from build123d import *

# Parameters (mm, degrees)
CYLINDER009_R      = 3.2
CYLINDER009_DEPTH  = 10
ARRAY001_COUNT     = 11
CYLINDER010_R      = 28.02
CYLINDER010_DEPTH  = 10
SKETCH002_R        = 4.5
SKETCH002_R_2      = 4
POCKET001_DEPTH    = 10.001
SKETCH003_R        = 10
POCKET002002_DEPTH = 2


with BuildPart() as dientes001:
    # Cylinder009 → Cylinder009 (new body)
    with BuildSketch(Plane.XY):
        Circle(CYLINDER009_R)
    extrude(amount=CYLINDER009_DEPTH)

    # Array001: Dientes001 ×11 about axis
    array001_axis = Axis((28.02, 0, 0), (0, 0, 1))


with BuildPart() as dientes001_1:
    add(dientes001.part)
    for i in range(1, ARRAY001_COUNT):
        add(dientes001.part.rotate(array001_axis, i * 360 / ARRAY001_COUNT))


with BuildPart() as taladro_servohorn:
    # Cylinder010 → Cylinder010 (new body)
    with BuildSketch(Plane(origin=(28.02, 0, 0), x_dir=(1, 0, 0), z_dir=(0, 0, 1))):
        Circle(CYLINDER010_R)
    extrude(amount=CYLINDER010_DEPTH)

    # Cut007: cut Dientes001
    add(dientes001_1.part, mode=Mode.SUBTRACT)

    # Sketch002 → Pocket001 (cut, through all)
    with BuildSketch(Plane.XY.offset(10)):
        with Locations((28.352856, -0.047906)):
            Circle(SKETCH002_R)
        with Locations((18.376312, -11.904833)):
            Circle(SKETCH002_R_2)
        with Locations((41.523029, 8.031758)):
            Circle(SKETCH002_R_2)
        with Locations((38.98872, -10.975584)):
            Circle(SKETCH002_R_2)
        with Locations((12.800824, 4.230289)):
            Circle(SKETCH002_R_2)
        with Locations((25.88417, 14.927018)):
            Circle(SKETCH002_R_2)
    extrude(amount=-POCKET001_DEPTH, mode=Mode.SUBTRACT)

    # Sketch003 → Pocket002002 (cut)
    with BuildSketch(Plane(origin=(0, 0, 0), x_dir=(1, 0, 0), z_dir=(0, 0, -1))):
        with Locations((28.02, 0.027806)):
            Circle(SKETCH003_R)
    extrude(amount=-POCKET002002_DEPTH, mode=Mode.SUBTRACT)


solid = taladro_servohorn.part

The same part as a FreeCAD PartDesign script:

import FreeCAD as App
import Part
import Sketcher
Q = App.Units.Quantity

doc = App.newDocument("Part")
body = doc.addObject("PartDesign::Body", "Body")

# Sketch on XY plane
sketch1 = body.newObject("Sketcher::SketchObject", "Sketch")
sketch1.AttachmentSupport = (doc.getObject("XY_Plane"), [""])
sketch1.MapMode = "FlatFace"
sketch1.addGeometry(Part.Circle(App.Vector(0, 0, 0), App.Vector(0, 0, 1), 3.2), False)
sketch1.addConstraint([
    Sketcher.Constraint("Coincident", 0, 3, -1, 1),
    Sketcher.Constraint("Diameter", 0, Q("6.4 mm")),
])
pad1 = body.newObject("PartDesign::Pad", "Pad")
pad1.Profile = sketch1
pad1.Length = 10
body2 = doc.addObject("PartDesign::Body", "Body001")
body2.AllowCompound = True
doc.recompute()

body2.BaseFeature = body
doc.recompute()

body3 = doc.addObject("PartDesign::Body", "Body002")
body3.BaseFeature = body
body3.Placement = App.Placement(App.Vector(4.448076, -15.148756, 0), App.Rotation(App.Vector(0, 0, 1), 32.727273))
boolean = body2.newObject("PartDesign::Boolean", "Boolean")
boolean.Type = "Fuse"
boolean.addObjects([body3])
doc.recompute()

body4 = doc.addObject("PartDesign::Body", "Body003")
body4.BaseFeature = body
body4.Placement = App.Placement(App.Vector(16.380071, -25.487889, 0), App.Rotation(App.Vector(0, 0, 1), 65.454545))
boolean2 = body2.newObject("PartDesign::Boolean", "Boolean001")
boolean2.Type = "Fuse"
boolean2.addObjects([body4])
doc.recompute()

body5 = doc.addObject("PartDesign::Body", "Body004")
body5.BaseFeature = body
body5.Placement = App.Placement(App.Vector(32.007662, -27.734797, 0), App.Rotation(App.Vector(0, 0, 1), 98.181818))
boolean3 = body2.newObject("PartDesign::Boolean", "Boolean002")
boolean3.Type = "Fuse"
boolean3.addObjects([body5])
doc.recompute()

body6 = doc.addObject("PartDesign::Body", "Body005")
body6.BaseFeature = body
body6.Placement = App.Placement(App.Vector(46.369198, -21.176103, 0), App.Rotation(App.Vector(0, 0, 1), 130.909091))
boolean4 = body2.newObject("PartDesign::Boolean", "Boolean003")
boolean4.Type = "Fuse"
boolean4.addObjects([body6])
doc.recompute()

body7 = doc.addObject("PartDesign::Body", "Body006")
body7.BaseFeature = body
body7.Placement = App.Placement(App.Vector(54.904993, -7.894146, 0), App.Rotation(App.Vector(0, 0, 1), 163.636364))
boolean5 = body2.newObject("PartDesign::Boolean", "Boolean004")
boolean5.Type = "Fuse"
boolean5.addObjects([body7])
doc.recompute()

body8 = doc.addObject("PartDesign::Body", "Body007")
body8.BaseFeature = body
body8.Placement = App.Placement(App.Vector(54.904993, 7.894146, 0), App.Rotation(App.Vector(0, 0, 1), 196.363636))
boolean6 = body2.newObject("PartDesign::Boolean", "Boolean005")
boolean6.Type = "Fuse"
boolean6.addObjects([body8])
doc.recompute()

body9 = doc.addObject("PartDesign::Body", "Body008")
body9.BaseFeature = body
body9.Placement = App.Placement(App.Vector(46.369198, 21.176103, 0), App.Rotation(App.Vector(0, 0, 1), 229.090909))
boolean7 = body2.newObject("PartDesign::Boolean", "Boolean006")
boolean7.Type = "Fuse"
boolean7.addObjects([body9])
doc.recompute()

body10 = doc.addObject("PartDesign::Body", "Body009")
body10.BaseFeature = body
body10.Placement = App.Placement(App.Vector(32.007662, 27.734797, 0), App.Rotation(App.Vector(0, 0, 1), 261.818182))
boolean8 = body2.newObject("PartDesign::Boolean", "Boolean007")
boolean8.Type = "Fuse"
boolean8.addObjects([body10])
doc.recompute()

body11 = doc.addObject("PartDesign::Body", "Body010")
body11.BaseFeature = body
body11.Placement = App.Placement(App.Vector(16.380071, 25.487889, 0), App.Rotation(App.Vector(0, 0, 1), 294.545455))
boolean9 = body2.newObject("PartDesign::Boolean", "Boolean008")
boolean9.Type = "Fuse"
boolean9.addObjects([body11])
doc.recompute()

body.Placement = App.Placement(App.Vector(4.448076, 15.148756, 0), App.Rotation(App.Vector(0, 0, 1), 327.272727))
boolean10 = body2.newObject("PartDesign::Boolean", "Boolean009")
boolean10.Type = "Fuse"
boolean10.addObjects([body])
body12 = doc.addObject("PartDesign::Body", "Body011")

# Sketch on XY plane
sketch2 = body12.newObject("Sketcher::SketchObject", "Sketch001")
sketch2.AttachmentSupport = (doc.getObject("XY_Plane011"), [""])
sketch2.MapMode = "FlatFace"
sketch2.addGeometry(Part.Circle(App.Vector(28, 0, 0), App.Vector(0, 0, 1), 28), False)
sketch2.addConstraint([
    Sketcher.Constraint("PointOnObject", 0, 3, -1),
    Sketcher.Constraint("Diameter", 0, Q("56.04 mm")),
    Sketcher.Constraint("DistanceX", -1, 1, 0, 3, Q("28.02 mm")),
])
pad2 = body12.newObject("PartDesign::Pad", "Pad001")
pad2.Profile = sketch2
pad2.Length = 10
doc.recompute()

boolean11 = body12.newObject("PartDesign::Boolean", "Boolean010")
boolean11.Type = "Cut"
boolean11.addObjects([body2])

# Sketch on XY plane
sketch3 = body12.newObject("Sketcher::SketchObject", "Sketch002")
sketch3.AttachmentSupport = (doc.getObject("XY_Plane011"), [""])
sketch3.MapMode = "FlatFace"
sketch3.AttachmentOffset = App.Placement(App.Vector(0, 0, 10), App.Rotation())
sketch3.addGeometry([
    Part.Circle(App.Vector(28.4, 0, 0), App.Vector(0, 0, 1), 4.5),  # 0
    Part.Circle(App.Vector(18.4, -11.9, 0), App.Vector(0, 0, 1), 4),  # 1
    Part.Circle(App.Vector(41.5, 8, 0), App.Vector(0, 0, 1), 4),  # 2
    Part.Circle(App.Vector(39, -11, 0), App.Vector(0, 0, 1), 4),  # 3
    Part.Circle(App.Vector(12.8, 4.2, 0), App.Vector(0, 0, 1), 4),  # 4
    Part.Circle(App.Vector(25.9, 14.9, 0), App.Vector(0, 0, 1), 4),  # 5
], False)
sketch3.addConstraint([
    Sketcher.Constraint("Equal", 1, 2),
    Sketcher.Constraint("Equal", 2, 3),
    Sketcher.Constraint("Equal", 3, 4),
    Sketcher.Constraint("Equal", 4, 5),
    Sketcher.Constraint("Diameter", 0, Q("9 mm")),
    Sketcher.Constraint("Diameter", 1, Q("8 mm")),
    Sketcher.Constraint("DistanceX", -1, 1, 1, 3, Q("18.376312 mm")),
    Sketcher.Constraint("DistanceX", -1, 1, 2, 3, Q("41.523029 mm")),
    Sketcher.Constraint("DistanceX", -1, 1, 3, 3, Q("38.98872 mm")),
    Sketcher.Constraint("DistanceY", -1, 1, 4, 3, Q("4.230289 mm")),
    Sketcher.Constraint("DistanceX", -1, 1, 5, 3, Q("25.88417 mm")),
    Sketcher.Constraint("DistanceY", 1, 3, 2, 3, Q("19.936591 mm")),
    Sketcher.Constraint("DistanceY", 1, 3, 3, 3, Q("0.929249 mm")),
    Sketcher.Constraint("DistanceX", 4, 3, 0, 3, Q("15.552032 mm")),
    Sketcher.Constraint("DistanceY", 1, 3, 4, 3, Q("16.135122 mm")),
    Sketcher.Constraint("DistanceY", 4, 3, 5, 3, Q("10.696729 mm")),
    Sketcher.Constraint("DistanceX", -1, 1, 0, 3, Q("28.352856 mm")),
    Sketcher.Constraint("DistanceY", 0, 3, -1, 1, Q("0.047906 mm")),
])
pocket1 = body12.newObject("PartDesign::Pocket", "Pocket")
pocket1.Profile = sketch3
pocket1.Type = "ThroughAll"

# Sketch on XY plane
sketch4 = body12.newObject("Sketcher::SketchObject", "Sketch003")
sketch4.AttachmentSupport = (doc.getObject("XY_Plane011"), [""])
sketch4.MapMode = "FlatFace"
sketch4.addGeometry(Part.Circle(App.Vector(28, 0, 0), App.Vector(0, 0, 1), 10), False)
sketch4.addConstraint([
    Sketcher.Constraint("Diameter", 0, Q("20 mm")),
    Sketcher.Constraint("DistanceX", -1, 1, 0, 3, Q("28.02 mm")),
    Sketcher.Constraint("DistanceY", 0, 3, -1, 1, Q("0.027806 mm")),
])
pocket2 = body12.newObject("PartDesign::Pocket", "Pocket001")
pocket2.Profile = sketch4
pocket2.Length = 2
pocket2.Reversed = True

doc.recompute()
